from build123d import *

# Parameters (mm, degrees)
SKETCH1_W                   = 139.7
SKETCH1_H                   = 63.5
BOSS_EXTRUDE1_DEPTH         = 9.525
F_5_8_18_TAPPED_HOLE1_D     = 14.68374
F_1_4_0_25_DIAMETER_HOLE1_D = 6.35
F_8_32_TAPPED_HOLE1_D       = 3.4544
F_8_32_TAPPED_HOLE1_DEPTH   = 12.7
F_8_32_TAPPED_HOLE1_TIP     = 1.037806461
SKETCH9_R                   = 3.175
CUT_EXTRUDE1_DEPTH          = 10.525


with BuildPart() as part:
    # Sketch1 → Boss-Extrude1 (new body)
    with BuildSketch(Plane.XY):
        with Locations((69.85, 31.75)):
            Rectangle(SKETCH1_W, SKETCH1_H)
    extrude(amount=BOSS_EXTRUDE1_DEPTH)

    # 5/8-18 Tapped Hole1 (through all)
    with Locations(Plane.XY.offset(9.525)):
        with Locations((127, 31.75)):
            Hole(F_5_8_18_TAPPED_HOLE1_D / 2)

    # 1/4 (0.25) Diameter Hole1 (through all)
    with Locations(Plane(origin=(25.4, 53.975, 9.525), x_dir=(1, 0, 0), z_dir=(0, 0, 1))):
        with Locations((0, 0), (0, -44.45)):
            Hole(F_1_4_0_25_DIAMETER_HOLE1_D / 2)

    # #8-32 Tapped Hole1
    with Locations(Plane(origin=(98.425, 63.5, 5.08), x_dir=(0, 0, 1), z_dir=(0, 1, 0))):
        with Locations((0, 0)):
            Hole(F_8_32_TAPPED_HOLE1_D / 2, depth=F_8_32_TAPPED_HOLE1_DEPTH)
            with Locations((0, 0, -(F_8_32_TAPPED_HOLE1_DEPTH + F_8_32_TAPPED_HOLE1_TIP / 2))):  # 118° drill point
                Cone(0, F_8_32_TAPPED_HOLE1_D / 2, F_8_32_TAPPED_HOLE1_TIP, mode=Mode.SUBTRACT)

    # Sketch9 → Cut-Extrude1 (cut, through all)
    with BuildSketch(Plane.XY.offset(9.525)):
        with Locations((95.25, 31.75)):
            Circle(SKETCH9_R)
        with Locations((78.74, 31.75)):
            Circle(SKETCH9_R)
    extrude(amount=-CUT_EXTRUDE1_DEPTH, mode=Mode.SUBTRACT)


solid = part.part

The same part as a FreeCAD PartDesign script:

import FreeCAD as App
import Part
import Sketcher

V = App.Vector
Q = App.Units.Quantity


def add_polygon(sketch, points):
    """Adds a closed chain of lines whose ends are joined by coincident constraints."""
    first, n = sketch.GeometryCount, len(points)
    for a, b in zip(points, points[1:] + points[:1]):
        sketch.addGeometry(Part.LineSegment(App.Vector(*a, 0), App.Vector(*b, 0)), False)
    for i in range(n):
        sketch.addConstraint(Sketcher.Constraint("Coincident", first + i, 2, first + (i + 1) % n, 1))

doc = App.newDocument("Part")
body = doc.addObject("PartDesign::Body", "Body")

sketch1 = doc.addObject("Sketcher::SketchObject", "Sketch")
body.addObject(sketch1)
sketch1.AttachmentSupport = (doc.XY_Plane, [""])
sketch1.MapMode = "FlatFace"
add_polygon(sketch1, [(0, 64), (0, 0), (140, 0), (140, 64)])
sketch1.addConstraint([
    Sketcher.Constraint("Vertical", 0),
    Sketcher.Constraint("Horizontal", 1),
    Sketcher.Constraint("Vertical", 2),
    Sketcher.Constraint("Horizontal", 3),
    Sketcher.Constraint("Coincident", 0, 2, -1, 1),
    Sketcher.Constraint("DistanceX", 1, 1, 1, 2, Q("5.5 in")),
    Sketcher.Constraint("DistanceY", 0, 2, 0, 1, Q("2.5 in")),
])
pad1 = doc.addObject("PartDesign::Pad", "Pad")
body.addObject(pad1)
pad1.Profile = sketch1
pad1.Length = Q("0.375 in")

sketch2 = doc.addObject("Sketcher::SketchObject", "Sketch001")
body.addObject(sketch2)
sketch2.AttachmentSupport = (doc.XY_Plane, [""])
sketch2.MapMode = "FlatFace"
sketch2.AttachmentOffset = App.Placement(V(0, 0, 0.375 * 25.4), App.Rotation())
sketch2.addGeometry(Part.Circle(V(127, 32, 0), V(0, 0, 1), 7), False)
sketch2.addConstraint([
    Sketcher.Constraint("DistanceX", -1, 1, 0, 3, Q("5 in")),
    Sketcher.Constraint("Diameter", 0, Q("0.5781 in")),
    Sketcher.Constraint("DistanceY", -1, 1, 0, 3, Q("1.25 in")),
])
doc.recompute()
hole = doc.addObject("PartDesign::Hole", "Hole")
body.addObject(hole)
hole.Profile = sketch2
hole.ThreadType = "None"
hole.Diameter = Q("0.5781 in")
hole.DepthType = "ThroughAll"

sketch3 = doc.addObject("Sketcher::SketchObject", "Sketch002")
body.addObject(sketch3)
sketch3.AttachmentSupport = (doc.XY_Plane, [""])
sketch3.MapMode = "FlatFace"
sketch3.AttachmentOffset = App.Placement(V(0, 0, 0.375 * 25.4), App.Rotation())
sketch3.addGeometry([
    Part.Circle(V(25.4, 54, 0), V(0, 0, 1), 3.2),
    Part.Circle(V(25.4, 9.5, 0), V(0, 0, 1), 3.2),
], False)
sketch3.addConstraint([
    Sketcher.Constraint("Equal", 0, 1),
    Sketcher.Constraint("Vertical", 0, 3, 1, 3),
    Sketcher.Constraint("Diameter", 0, Q("0.25 in")),
    Sketcher.Constraint("DistanceX", -1, 1, 0, 3, Q("1 in")),
    Sketcher.Constraint("DistanceY", 1, 3, 0, 3, Q("1.75 in")),
    Sketcher.Constraint("DistanceY", -1, 1, 0, 3, Q("2.125 in")),
])
doc.recompute()
hole2 = doc.addObject("PartDesign::Hole", "Hole001")
body.addObject(hole2)
hole2.Profile = sketch3
hole2.ThreadType = "None"
hole2.Diameter = Q("0.25 in")
hole2.DepthType = "ThroughAll"

sketch4 = doc.addObject("Sketcher::SketchObject", "Sketch003")
body.addObject(sketch4)
sketch4.AttachmentSupport = (doc.XZ_Plane, [""])
sketch4.MapMode = "FlatFace"
sketch4.AttachmentOffset = App.Placement(V(0, 0, -2.5 * 25.4), App.Rotation())
sketch4.addGeometry(Part.Circle(V(98.4, 5.1, 0), V(0, 0, 1), 1.7), False)
sketch4.addConstraint([
    Sketcher.Constraint("Diameter", 0, Q("0.136 in")),
    Sketcher.Constraint("DistanceY", -1, 1, 0, 3, Q("0.2 in")),
    Sketcher.Constraint("DistanceX", -1, 1, 0, 3, Q("3.875 in")),
])
doc.recompute()
hole3 = doc.addObject("PartDesign::Hole", "Hole002")
body.addObject(hole3)
hole3.Profile = sketch4
hole3.ThreadType = "None"
hole3.Diameter = Q("0.136 in")
hole3.DepthType = "Dimension"
hole3.Depth = Q("0.5 in")
hole3.DrillPoint = "Angled"
hole3.DrillPointAngle = 118
hole3.Reversed = True

sketch5 = doc.addObject("Sketcher::SketchObject", "Sketch004")
body.addObject(sketch5)
sketch5.AttachmentSupport = (doc.XY_Plane, [""])
sketch5.MapMode = "FlatFace"
sketch5.AttachmentOffset = App.Placement(V(0, 0, 0.375 * 25.4), App.Rotation())
sketch5.addGeometry([
    Part.Circle(V(95.2, 31.8, 0), V(0, 0, 1), 3.2),
    Part.Circle(V(78.7, 31.8, 0), V(0, 0, 1), 3.2),
], False)
sketch5.addConstraint([
    Sketcher.Constraint("Equal", 0, 1),
    Sketcher.Constraint("Horizontal", 0, 3, 1, 3),
    Sketcher.Constraint("Diameter", 0, Q("0.25 in")),
    Sketcher.Constraint("DistanceX", -1, 1, 1, 3, Q("3.1 in")),
    Sketcher.Constraint("DistanceX", -1, 1, 0, 3, Q("3.75 in")),
    Sketcher.Constraint("DistanceY", -1, 1, 0, 3, Q("1.25 in")),
])
pocket1 = doc.addObject("PartDesign::Pocket", "Pocket")
body.addObject(pocket1)
pocket1.Profile = sketch5
pocket1.Type = "ThroughAll"

doc.recompute()
